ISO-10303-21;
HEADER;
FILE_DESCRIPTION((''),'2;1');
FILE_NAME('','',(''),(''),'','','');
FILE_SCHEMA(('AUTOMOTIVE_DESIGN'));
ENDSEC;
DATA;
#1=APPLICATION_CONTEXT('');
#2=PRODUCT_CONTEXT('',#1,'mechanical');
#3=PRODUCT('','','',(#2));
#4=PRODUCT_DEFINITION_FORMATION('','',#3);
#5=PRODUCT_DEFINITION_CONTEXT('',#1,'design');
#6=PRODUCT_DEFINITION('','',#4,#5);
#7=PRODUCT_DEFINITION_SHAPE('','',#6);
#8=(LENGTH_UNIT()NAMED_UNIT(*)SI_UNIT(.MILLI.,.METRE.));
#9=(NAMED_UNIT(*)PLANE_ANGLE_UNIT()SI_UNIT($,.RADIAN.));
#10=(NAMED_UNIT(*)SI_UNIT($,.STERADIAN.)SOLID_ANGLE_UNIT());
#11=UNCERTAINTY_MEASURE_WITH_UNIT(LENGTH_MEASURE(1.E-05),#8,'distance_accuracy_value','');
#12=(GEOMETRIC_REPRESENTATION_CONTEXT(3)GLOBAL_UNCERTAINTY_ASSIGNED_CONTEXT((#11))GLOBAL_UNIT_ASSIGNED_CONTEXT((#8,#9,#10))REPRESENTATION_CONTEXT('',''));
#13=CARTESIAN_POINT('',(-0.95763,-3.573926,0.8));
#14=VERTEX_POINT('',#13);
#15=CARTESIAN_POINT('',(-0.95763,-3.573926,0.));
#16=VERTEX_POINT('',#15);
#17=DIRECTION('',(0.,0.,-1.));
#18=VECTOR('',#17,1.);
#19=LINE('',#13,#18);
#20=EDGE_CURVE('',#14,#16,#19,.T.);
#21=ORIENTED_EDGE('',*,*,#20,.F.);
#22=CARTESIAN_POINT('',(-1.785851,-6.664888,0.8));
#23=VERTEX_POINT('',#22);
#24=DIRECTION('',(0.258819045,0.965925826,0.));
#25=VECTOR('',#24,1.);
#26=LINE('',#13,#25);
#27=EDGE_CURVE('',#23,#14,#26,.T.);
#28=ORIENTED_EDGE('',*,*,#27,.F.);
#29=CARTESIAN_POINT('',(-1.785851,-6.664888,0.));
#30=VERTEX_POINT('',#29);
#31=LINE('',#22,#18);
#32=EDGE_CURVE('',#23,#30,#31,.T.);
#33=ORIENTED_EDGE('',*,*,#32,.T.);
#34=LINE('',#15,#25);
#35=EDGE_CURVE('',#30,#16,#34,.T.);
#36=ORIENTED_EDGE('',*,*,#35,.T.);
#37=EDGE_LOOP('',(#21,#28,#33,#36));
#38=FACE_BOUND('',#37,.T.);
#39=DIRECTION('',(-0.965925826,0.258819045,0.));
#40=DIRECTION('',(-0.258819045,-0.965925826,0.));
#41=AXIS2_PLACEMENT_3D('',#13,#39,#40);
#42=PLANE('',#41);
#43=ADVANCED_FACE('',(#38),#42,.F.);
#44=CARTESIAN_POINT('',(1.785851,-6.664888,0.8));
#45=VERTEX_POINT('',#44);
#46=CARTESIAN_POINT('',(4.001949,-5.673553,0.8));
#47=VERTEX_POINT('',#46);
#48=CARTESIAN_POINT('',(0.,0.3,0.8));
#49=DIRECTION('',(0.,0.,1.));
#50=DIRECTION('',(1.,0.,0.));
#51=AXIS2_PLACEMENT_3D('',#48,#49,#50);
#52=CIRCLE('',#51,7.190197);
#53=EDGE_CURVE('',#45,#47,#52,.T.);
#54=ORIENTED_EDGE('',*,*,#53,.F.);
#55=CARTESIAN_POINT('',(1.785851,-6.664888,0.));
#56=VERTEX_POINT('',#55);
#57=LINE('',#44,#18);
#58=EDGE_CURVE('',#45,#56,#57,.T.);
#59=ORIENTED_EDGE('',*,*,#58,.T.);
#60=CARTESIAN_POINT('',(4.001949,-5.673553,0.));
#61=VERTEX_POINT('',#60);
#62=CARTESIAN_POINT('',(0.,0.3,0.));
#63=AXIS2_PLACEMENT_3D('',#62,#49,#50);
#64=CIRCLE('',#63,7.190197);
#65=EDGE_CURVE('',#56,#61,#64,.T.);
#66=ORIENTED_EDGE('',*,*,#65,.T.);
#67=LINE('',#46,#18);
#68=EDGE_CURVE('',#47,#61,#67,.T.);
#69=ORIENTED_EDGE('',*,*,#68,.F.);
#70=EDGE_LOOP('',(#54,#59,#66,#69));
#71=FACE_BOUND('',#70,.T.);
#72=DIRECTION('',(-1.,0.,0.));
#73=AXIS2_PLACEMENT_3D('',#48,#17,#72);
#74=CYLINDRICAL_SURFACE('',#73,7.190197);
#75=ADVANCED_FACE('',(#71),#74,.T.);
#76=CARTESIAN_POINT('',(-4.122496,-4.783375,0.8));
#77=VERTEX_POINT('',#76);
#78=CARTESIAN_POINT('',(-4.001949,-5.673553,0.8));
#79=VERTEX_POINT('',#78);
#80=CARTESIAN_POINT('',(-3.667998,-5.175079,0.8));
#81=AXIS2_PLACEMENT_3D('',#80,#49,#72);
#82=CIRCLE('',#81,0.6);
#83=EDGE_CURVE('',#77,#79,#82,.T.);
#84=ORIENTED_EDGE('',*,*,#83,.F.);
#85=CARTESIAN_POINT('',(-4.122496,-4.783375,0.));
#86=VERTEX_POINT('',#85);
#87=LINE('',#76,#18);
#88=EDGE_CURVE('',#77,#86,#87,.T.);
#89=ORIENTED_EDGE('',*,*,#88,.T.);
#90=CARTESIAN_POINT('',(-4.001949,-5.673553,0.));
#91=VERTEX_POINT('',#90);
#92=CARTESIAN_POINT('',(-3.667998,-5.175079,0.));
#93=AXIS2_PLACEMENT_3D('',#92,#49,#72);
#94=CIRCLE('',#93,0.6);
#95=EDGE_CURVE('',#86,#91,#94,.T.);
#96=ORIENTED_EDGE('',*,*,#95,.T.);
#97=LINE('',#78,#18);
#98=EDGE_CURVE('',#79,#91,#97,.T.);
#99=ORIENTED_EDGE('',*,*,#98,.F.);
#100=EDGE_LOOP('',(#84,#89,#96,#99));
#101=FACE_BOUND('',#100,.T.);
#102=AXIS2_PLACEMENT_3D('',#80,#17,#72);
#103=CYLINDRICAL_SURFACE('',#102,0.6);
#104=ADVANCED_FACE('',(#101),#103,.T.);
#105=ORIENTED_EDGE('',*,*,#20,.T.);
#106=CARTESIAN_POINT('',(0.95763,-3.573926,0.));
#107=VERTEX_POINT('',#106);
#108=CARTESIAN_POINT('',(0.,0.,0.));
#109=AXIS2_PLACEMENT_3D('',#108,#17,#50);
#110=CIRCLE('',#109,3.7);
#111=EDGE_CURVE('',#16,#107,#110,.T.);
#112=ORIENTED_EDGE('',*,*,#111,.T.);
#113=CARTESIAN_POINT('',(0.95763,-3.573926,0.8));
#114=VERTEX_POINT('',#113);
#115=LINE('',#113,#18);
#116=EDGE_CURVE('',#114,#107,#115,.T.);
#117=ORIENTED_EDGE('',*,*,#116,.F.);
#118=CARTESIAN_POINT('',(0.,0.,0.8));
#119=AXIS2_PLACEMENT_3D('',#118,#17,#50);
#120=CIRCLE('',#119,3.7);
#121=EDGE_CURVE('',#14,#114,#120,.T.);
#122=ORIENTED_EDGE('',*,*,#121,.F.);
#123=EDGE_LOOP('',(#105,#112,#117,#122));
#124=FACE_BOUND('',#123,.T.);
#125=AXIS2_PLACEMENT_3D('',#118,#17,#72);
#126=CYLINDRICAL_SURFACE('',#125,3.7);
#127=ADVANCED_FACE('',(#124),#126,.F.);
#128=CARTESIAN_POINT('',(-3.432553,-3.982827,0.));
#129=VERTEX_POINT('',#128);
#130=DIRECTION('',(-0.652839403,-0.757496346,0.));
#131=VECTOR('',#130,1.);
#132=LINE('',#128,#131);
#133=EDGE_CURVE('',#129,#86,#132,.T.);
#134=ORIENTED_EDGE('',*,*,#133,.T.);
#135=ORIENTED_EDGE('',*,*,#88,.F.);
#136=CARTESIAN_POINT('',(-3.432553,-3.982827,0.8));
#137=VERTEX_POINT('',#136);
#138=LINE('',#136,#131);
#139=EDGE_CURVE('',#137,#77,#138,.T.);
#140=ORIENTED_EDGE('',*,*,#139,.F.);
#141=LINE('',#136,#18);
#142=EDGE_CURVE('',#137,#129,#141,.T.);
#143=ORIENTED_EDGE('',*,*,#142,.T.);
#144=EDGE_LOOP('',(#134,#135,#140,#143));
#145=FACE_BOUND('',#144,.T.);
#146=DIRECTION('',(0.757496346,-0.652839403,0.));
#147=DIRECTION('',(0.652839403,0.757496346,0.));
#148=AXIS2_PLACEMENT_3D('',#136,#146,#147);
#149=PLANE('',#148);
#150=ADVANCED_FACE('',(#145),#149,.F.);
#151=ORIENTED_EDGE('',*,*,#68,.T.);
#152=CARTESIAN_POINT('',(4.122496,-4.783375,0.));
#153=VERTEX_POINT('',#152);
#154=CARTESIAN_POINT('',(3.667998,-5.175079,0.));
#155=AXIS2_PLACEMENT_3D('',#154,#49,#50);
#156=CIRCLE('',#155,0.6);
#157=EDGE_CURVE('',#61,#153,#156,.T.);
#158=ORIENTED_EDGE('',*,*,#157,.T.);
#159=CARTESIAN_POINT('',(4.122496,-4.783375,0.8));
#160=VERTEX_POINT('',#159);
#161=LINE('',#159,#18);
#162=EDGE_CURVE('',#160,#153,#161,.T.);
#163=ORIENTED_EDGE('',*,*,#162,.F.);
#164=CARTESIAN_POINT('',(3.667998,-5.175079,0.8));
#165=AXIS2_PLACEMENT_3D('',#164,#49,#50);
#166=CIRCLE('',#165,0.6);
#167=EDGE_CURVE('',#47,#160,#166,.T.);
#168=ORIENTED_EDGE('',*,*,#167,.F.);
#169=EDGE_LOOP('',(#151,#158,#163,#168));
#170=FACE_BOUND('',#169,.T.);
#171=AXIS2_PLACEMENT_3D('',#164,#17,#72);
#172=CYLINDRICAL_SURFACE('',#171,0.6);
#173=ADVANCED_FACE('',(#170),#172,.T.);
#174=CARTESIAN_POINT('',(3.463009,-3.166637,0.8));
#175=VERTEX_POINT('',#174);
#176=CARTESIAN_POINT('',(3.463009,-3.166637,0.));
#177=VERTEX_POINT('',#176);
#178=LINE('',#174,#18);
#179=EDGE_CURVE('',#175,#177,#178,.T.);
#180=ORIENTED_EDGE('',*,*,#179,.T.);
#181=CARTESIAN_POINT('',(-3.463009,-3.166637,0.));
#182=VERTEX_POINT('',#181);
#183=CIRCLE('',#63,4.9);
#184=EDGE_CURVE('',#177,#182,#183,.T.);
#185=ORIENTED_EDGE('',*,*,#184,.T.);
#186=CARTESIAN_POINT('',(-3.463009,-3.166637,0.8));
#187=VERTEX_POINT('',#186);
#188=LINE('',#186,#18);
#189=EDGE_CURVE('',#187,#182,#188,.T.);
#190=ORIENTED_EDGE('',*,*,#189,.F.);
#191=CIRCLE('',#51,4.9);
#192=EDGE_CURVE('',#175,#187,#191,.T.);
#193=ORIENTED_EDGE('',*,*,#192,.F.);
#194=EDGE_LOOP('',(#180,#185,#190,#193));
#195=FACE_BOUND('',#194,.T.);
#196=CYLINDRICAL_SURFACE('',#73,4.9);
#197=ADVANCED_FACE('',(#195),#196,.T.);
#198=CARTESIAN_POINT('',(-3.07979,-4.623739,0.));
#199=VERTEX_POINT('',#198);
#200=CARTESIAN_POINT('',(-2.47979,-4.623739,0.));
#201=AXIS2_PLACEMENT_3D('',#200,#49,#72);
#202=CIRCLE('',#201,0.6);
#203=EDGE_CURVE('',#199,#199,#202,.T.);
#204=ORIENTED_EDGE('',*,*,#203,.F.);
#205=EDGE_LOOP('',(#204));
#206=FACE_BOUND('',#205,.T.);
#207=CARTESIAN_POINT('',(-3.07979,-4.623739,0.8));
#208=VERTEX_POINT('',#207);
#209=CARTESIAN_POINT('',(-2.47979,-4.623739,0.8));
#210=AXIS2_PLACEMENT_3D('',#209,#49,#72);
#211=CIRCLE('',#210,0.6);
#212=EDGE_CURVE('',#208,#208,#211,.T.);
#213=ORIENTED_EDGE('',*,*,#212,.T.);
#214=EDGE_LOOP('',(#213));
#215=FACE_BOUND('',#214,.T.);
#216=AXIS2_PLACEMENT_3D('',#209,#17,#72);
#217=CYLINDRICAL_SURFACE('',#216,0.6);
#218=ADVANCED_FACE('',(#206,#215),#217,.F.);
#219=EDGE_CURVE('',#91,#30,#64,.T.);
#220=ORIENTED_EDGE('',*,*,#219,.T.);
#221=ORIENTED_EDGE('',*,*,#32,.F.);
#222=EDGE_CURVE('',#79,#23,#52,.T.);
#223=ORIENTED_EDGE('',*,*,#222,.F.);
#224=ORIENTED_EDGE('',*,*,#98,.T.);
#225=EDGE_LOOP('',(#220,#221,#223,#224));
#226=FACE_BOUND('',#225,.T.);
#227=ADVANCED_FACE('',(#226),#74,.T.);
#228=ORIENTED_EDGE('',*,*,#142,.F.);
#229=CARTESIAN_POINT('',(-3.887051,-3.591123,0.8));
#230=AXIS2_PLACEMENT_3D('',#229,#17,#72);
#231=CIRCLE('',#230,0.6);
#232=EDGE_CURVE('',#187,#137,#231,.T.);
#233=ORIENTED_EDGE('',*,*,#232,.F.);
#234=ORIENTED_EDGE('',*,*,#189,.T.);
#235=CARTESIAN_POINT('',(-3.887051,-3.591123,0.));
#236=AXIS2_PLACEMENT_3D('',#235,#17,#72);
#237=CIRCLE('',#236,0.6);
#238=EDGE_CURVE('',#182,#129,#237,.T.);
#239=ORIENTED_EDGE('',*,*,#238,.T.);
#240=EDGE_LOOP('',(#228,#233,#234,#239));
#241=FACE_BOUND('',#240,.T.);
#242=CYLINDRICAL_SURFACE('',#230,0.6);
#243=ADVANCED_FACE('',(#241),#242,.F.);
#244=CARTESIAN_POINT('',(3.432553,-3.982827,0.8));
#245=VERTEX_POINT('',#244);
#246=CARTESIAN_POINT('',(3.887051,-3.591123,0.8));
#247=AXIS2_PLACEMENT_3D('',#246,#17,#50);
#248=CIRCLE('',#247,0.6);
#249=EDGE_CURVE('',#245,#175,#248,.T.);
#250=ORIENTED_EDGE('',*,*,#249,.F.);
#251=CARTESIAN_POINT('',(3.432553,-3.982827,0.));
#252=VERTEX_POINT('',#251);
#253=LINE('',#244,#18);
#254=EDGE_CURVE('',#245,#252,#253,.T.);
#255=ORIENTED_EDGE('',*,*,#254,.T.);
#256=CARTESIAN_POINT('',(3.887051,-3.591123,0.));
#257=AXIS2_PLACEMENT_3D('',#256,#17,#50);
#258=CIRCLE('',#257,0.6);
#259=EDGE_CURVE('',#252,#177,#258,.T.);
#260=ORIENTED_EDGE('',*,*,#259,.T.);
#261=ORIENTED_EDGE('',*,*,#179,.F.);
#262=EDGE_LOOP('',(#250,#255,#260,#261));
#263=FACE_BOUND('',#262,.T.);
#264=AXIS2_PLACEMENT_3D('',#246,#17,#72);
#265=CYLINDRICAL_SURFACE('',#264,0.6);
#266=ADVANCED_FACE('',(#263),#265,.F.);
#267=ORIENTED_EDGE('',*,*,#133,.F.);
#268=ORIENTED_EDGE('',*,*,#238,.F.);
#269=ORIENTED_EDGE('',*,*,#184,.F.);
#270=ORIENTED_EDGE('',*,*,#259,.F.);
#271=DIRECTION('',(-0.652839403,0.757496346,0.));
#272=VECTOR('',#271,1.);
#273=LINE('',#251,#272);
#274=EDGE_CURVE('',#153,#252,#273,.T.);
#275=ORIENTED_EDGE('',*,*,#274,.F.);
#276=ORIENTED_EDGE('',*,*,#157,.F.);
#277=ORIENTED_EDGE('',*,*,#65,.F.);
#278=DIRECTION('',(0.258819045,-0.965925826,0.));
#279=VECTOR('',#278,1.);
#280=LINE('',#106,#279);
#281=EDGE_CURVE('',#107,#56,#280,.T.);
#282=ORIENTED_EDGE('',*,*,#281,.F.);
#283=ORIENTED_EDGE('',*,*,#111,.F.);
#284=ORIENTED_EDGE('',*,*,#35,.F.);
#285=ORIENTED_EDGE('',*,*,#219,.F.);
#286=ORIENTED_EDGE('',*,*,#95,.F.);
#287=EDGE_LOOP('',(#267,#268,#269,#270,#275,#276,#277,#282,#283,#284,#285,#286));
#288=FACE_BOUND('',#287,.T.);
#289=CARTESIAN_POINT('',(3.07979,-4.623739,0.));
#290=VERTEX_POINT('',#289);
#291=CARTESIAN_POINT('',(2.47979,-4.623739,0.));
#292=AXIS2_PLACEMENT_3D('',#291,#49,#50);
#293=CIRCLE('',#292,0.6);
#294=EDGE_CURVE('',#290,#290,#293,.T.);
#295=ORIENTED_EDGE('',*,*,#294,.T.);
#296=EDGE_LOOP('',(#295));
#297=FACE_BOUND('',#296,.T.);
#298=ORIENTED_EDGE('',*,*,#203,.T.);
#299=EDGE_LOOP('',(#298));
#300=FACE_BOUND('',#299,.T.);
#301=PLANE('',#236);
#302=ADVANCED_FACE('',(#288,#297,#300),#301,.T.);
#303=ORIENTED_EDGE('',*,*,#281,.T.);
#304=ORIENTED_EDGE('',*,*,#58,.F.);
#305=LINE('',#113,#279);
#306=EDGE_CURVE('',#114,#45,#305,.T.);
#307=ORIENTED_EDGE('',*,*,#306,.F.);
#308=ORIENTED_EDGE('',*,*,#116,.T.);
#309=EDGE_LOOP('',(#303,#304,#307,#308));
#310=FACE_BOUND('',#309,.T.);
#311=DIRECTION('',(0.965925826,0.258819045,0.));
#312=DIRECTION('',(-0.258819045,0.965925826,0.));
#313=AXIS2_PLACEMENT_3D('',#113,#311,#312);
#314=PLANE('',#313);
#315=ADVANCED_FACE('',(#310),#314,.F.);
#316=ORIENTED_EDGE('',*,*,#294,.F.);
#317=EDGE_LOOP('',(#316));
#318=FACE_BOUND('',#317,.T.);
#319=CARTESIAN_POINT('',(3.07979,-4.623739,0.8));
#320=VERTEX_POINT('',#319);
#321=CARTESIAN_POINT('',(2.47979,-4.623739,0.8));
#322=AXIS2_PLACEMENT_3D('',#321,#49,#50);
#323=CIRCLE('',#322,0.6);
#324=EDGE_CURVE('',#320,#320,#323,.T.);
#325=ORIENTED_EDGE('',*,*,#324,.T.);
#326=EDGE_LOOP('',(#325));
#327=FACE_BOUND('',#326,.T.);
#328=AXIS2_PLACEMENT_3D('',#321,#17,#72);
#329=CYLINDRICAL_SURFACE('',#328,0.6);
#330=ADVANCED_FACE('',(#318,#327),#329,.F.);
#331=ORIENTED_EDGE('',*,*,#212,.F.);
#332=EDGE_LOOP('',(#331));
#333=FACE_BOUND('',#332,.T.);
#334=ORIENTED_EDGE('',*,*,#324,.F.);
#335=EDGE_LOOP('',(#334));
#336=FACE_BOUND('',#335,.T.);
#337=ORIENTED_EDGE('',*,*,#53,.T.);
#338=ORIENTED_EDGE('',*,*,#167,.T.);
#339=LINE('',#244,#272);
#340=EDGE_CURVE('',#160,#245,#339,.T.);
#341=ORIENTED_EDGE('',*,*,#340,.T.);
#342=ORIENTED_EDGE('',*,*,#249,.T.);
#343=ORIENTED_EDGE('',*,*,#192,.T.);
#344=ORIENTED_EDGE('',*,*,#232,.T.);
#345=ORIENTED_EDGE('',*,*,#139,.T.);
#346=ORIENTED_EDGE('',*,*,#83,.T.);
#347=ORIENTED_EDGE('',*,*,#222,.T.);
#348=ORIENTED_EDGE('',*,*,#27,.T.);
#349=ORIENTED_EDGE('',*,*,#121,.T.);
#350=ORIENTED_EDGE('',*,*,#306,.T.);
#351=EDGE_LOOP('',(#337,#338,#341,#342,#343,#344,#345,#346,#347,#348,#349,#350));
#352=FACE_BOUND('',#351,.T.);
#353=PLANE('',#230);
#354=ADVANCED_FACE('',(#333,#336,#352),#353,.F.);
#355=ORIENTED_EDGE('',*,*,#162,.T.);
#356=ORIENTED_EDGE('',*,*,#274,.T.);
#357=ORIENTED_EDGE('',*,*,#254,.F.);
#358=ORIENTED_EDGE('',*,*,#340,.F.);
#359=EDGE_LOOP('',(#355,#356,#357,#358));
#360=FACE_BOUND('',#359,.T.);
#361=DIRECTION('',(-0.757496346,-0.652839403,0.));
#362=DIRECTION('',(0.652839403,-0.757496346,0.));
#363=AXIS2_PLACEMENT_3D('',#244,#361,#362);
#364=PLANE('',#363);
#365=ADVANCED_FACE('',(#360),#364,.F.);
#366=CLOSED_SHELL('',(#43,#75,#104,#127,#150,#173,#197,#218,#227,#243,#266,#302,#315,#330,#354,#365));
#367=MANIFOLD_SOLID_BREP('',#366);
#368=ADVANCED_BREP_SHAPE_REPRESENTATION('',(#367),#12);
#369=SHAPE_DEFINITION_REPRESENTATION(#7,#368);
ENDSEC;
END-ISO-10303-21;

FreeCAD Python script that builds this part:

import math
import FreeCAD as App
import Part
import Sketcher

V = App.Vector
Q = App.Units.Quantity

doc = App.newDocument("Part")
params = doc.addObject("Spreadsheet::Sheet", "Params")
for row, (alias, value) in enumerate([
    ("sketch1_diameter", "1.2 mm"),
    ("sketch1_radius", "4.9 mm"),
    ("sketch1_radius2", "3.7 mm"),
    ("sketch1_length", "3.2 mm"),
    ("pad1_length", "0.8 mm"),
], start=1):
    params.set(f"A{row}", alias)
    params.set(f"B{row}", "=" + value)
    params.setAlias(f"B{row}", alias)

body = doc.addObject("PartDesign::Body", "Body")

sketch1 = doc.addObject("Sketcher::SketchObject", "Sketch")
body.addObject(sketch1)
sketch1.AttachmentSupport = (doc.XY_Plane, [""])
sketch1.MapMode = "FlatFace"
sketch1.addGeometry([
    Part.LineSegment(V(4.1, -4.8, 0), V(3.4, -4, 0)),
    Part.ArcOfCircle(Part.Circle(V(3.9, -3.6, 0), V(0, 0, 1), 0.6), math.radians(135), math.radians(221)),
    Part.ArcOfCircle(Part.Circle(V(0, 0.3, 0), V(0, 0, 1), 4.9), math.radians(-45), math.radians(225)),
    Part.ArcOfCircle(Part.Circle(V(-3.9, -3.6, 0), V(0, 0, 1), 0.6), math.radians(-41), math.radians(45)),
    Part.LineSegment(V(-3.4, -4, 0), V(-4.1, -4.8, 0)),
    Part.ArcOfCircle(Part.Circle(V(-3.7, -5.2, 0), V(0, 0, 1), 0.6), math.radians(139), math.radians(236)),
    Part.ArcOfCircle(Part.Circle(V(0, 0.3, 0), V(0, 0, 1), 7.2), math.radians(-123.82), math.radians(-104.38)),
    Part.LineSegment(V(-1.8, -6.7, 0), V(-1, -3.6, 0)),
    Part.ArcOfCircle(Part.Circle(V(0, 0, 0), V(0, 0, 1), 3.7), math.radians(-75), math.radians(255)),
    Part.LineSegment(V(1, -3.6, 0), V(1.8, -6.7, 0)),
    Part.ArcOfCircle(Part.Circle(V(0, 0.3, 0), V(0, 0, 1), 7.2), math.radians(-75.62), math.radians(-56.18)),
    Part.ArcOfCircle(Part.Circle(V(3.7, -5.2, 0), V(0, 0, 1), 0.6), math.radians(-56), math.radians(41)),
    Part.Circle(V(2.5, -4.6, 0), V(0, 0, 1), 0.6),
    Part.Circle(V(-2.5, -4.6, 0), V(0, 0, 1), 0.6),
], False)
sketch1.addConstraint([
    Sketcher.Constraint("Tangent", 0, 2, 1, 2),
    Sketcher.Constraint("Tangent", 1, 1, 2, 1),
    Sketcher.Constraint("Tangent", 2, 2, 3, 2),
    Sketcher.Constraint("Tangent", 3, 1, 4, 1),
    Sketcher.Constraint("Tangent", 4, 2, 5, 1),
    Sketcher.Constraint("Tangent", 5, 2, 6, 1),
    Sketcher.Constraint("Coincident", 6, 2, 7, 1),
    Sketcher.Constraint("Coincident", 7, 2, 8, 2),
    Sketcher.Constraint("Coincident", 8, 1, 9, 1),
    Sketcher.Constraint("Coincident", 9, 2, 10, 1),
    Sketcher.Constraint("Tangent", 10, 2, 11, 1),
    Sketcher.Constraint("Tangent", 11, 2, 0, 1),
    Sketcher.Constraint("Coincident", 8, 3, -1, 1),
    Sketcher.Constraint("Coincident", 6, 3, 2, 3),
    Sketcher.Constraint("Coincident", 10, 3, 2, 3),
    Sketcher.Constraint("Equal", 1, 3),
    Sketcher.Constraint("Equal", 3, 5),
    Sketcher.Constraint("Equal", 6, 10),
    Sketcher.Constraint("Equal", 5, 11),
    Sketcher.Constraint("Equal", 11, 12),
    Sketcher.Constraint("Equal", 12, 13),
    Sketcher.Constraint("Symmetric", 1, 3, 3, 3, -2),
    Sketcher.Constraint("Symmetric", 12, 3, 13, 3, -2),
    Sketcher.Constraint("Horizontal", 5, 3, 11, 3),
    Sketcher.Constraint("Horizontal", 7, 2, 8, 1),
    Sketcher.Constraint("Horizontal", 6, 2, 9, 2),
    Sketcher.Constraint("Diameter", 12, 1.2),
    Sketcher.Constraint("Radius", 2, 4.9),
    Sketcher.Constraint("Radius", 8, 3.7),
    Sketcher.Constraint("Angle", 7, Q("75 deg")),
    Sketcher.Constraint("Distance", 7, 3.2),
    Sketcher.Constraint("DistanceY", -1, 1, 2, 3, 0.3),
    Sketcher.Constraint("DistanceX", 5, 3, -1, 1, 3.667998),
    Sketcher.Constraint("Radius", 6, 7.190197),
    Sketcher.Constraint("DistanceX", 3, 3, 1, 3, 7.774101),
    Sketcher.Constraint("DistanceX", -1, 1, 12, 3, 2.47979),
    Sketcher.Constraint("DistanceY", 12, 3, -1, 1, 4.623739),
])
sketch1.setExpression("Constraints[26]", "Params.sketch1_diameter")
sketch1.setExpression("Constraints[27]", "Params.sketch1_radius")
sketch1.setExpression("Constraints[28]", "Params.sketch1_radius2")
sketch1.setExpression("Constraints[30]", "Params.sketch1_length")
pad1 = doc.addObject("PartDesign::Pad", "Pad")
body.addObject(pad1)
pad1.Profile = sketch1
pad1.setExpression("Length", "Params.pad1_length")

doc.recompute()
